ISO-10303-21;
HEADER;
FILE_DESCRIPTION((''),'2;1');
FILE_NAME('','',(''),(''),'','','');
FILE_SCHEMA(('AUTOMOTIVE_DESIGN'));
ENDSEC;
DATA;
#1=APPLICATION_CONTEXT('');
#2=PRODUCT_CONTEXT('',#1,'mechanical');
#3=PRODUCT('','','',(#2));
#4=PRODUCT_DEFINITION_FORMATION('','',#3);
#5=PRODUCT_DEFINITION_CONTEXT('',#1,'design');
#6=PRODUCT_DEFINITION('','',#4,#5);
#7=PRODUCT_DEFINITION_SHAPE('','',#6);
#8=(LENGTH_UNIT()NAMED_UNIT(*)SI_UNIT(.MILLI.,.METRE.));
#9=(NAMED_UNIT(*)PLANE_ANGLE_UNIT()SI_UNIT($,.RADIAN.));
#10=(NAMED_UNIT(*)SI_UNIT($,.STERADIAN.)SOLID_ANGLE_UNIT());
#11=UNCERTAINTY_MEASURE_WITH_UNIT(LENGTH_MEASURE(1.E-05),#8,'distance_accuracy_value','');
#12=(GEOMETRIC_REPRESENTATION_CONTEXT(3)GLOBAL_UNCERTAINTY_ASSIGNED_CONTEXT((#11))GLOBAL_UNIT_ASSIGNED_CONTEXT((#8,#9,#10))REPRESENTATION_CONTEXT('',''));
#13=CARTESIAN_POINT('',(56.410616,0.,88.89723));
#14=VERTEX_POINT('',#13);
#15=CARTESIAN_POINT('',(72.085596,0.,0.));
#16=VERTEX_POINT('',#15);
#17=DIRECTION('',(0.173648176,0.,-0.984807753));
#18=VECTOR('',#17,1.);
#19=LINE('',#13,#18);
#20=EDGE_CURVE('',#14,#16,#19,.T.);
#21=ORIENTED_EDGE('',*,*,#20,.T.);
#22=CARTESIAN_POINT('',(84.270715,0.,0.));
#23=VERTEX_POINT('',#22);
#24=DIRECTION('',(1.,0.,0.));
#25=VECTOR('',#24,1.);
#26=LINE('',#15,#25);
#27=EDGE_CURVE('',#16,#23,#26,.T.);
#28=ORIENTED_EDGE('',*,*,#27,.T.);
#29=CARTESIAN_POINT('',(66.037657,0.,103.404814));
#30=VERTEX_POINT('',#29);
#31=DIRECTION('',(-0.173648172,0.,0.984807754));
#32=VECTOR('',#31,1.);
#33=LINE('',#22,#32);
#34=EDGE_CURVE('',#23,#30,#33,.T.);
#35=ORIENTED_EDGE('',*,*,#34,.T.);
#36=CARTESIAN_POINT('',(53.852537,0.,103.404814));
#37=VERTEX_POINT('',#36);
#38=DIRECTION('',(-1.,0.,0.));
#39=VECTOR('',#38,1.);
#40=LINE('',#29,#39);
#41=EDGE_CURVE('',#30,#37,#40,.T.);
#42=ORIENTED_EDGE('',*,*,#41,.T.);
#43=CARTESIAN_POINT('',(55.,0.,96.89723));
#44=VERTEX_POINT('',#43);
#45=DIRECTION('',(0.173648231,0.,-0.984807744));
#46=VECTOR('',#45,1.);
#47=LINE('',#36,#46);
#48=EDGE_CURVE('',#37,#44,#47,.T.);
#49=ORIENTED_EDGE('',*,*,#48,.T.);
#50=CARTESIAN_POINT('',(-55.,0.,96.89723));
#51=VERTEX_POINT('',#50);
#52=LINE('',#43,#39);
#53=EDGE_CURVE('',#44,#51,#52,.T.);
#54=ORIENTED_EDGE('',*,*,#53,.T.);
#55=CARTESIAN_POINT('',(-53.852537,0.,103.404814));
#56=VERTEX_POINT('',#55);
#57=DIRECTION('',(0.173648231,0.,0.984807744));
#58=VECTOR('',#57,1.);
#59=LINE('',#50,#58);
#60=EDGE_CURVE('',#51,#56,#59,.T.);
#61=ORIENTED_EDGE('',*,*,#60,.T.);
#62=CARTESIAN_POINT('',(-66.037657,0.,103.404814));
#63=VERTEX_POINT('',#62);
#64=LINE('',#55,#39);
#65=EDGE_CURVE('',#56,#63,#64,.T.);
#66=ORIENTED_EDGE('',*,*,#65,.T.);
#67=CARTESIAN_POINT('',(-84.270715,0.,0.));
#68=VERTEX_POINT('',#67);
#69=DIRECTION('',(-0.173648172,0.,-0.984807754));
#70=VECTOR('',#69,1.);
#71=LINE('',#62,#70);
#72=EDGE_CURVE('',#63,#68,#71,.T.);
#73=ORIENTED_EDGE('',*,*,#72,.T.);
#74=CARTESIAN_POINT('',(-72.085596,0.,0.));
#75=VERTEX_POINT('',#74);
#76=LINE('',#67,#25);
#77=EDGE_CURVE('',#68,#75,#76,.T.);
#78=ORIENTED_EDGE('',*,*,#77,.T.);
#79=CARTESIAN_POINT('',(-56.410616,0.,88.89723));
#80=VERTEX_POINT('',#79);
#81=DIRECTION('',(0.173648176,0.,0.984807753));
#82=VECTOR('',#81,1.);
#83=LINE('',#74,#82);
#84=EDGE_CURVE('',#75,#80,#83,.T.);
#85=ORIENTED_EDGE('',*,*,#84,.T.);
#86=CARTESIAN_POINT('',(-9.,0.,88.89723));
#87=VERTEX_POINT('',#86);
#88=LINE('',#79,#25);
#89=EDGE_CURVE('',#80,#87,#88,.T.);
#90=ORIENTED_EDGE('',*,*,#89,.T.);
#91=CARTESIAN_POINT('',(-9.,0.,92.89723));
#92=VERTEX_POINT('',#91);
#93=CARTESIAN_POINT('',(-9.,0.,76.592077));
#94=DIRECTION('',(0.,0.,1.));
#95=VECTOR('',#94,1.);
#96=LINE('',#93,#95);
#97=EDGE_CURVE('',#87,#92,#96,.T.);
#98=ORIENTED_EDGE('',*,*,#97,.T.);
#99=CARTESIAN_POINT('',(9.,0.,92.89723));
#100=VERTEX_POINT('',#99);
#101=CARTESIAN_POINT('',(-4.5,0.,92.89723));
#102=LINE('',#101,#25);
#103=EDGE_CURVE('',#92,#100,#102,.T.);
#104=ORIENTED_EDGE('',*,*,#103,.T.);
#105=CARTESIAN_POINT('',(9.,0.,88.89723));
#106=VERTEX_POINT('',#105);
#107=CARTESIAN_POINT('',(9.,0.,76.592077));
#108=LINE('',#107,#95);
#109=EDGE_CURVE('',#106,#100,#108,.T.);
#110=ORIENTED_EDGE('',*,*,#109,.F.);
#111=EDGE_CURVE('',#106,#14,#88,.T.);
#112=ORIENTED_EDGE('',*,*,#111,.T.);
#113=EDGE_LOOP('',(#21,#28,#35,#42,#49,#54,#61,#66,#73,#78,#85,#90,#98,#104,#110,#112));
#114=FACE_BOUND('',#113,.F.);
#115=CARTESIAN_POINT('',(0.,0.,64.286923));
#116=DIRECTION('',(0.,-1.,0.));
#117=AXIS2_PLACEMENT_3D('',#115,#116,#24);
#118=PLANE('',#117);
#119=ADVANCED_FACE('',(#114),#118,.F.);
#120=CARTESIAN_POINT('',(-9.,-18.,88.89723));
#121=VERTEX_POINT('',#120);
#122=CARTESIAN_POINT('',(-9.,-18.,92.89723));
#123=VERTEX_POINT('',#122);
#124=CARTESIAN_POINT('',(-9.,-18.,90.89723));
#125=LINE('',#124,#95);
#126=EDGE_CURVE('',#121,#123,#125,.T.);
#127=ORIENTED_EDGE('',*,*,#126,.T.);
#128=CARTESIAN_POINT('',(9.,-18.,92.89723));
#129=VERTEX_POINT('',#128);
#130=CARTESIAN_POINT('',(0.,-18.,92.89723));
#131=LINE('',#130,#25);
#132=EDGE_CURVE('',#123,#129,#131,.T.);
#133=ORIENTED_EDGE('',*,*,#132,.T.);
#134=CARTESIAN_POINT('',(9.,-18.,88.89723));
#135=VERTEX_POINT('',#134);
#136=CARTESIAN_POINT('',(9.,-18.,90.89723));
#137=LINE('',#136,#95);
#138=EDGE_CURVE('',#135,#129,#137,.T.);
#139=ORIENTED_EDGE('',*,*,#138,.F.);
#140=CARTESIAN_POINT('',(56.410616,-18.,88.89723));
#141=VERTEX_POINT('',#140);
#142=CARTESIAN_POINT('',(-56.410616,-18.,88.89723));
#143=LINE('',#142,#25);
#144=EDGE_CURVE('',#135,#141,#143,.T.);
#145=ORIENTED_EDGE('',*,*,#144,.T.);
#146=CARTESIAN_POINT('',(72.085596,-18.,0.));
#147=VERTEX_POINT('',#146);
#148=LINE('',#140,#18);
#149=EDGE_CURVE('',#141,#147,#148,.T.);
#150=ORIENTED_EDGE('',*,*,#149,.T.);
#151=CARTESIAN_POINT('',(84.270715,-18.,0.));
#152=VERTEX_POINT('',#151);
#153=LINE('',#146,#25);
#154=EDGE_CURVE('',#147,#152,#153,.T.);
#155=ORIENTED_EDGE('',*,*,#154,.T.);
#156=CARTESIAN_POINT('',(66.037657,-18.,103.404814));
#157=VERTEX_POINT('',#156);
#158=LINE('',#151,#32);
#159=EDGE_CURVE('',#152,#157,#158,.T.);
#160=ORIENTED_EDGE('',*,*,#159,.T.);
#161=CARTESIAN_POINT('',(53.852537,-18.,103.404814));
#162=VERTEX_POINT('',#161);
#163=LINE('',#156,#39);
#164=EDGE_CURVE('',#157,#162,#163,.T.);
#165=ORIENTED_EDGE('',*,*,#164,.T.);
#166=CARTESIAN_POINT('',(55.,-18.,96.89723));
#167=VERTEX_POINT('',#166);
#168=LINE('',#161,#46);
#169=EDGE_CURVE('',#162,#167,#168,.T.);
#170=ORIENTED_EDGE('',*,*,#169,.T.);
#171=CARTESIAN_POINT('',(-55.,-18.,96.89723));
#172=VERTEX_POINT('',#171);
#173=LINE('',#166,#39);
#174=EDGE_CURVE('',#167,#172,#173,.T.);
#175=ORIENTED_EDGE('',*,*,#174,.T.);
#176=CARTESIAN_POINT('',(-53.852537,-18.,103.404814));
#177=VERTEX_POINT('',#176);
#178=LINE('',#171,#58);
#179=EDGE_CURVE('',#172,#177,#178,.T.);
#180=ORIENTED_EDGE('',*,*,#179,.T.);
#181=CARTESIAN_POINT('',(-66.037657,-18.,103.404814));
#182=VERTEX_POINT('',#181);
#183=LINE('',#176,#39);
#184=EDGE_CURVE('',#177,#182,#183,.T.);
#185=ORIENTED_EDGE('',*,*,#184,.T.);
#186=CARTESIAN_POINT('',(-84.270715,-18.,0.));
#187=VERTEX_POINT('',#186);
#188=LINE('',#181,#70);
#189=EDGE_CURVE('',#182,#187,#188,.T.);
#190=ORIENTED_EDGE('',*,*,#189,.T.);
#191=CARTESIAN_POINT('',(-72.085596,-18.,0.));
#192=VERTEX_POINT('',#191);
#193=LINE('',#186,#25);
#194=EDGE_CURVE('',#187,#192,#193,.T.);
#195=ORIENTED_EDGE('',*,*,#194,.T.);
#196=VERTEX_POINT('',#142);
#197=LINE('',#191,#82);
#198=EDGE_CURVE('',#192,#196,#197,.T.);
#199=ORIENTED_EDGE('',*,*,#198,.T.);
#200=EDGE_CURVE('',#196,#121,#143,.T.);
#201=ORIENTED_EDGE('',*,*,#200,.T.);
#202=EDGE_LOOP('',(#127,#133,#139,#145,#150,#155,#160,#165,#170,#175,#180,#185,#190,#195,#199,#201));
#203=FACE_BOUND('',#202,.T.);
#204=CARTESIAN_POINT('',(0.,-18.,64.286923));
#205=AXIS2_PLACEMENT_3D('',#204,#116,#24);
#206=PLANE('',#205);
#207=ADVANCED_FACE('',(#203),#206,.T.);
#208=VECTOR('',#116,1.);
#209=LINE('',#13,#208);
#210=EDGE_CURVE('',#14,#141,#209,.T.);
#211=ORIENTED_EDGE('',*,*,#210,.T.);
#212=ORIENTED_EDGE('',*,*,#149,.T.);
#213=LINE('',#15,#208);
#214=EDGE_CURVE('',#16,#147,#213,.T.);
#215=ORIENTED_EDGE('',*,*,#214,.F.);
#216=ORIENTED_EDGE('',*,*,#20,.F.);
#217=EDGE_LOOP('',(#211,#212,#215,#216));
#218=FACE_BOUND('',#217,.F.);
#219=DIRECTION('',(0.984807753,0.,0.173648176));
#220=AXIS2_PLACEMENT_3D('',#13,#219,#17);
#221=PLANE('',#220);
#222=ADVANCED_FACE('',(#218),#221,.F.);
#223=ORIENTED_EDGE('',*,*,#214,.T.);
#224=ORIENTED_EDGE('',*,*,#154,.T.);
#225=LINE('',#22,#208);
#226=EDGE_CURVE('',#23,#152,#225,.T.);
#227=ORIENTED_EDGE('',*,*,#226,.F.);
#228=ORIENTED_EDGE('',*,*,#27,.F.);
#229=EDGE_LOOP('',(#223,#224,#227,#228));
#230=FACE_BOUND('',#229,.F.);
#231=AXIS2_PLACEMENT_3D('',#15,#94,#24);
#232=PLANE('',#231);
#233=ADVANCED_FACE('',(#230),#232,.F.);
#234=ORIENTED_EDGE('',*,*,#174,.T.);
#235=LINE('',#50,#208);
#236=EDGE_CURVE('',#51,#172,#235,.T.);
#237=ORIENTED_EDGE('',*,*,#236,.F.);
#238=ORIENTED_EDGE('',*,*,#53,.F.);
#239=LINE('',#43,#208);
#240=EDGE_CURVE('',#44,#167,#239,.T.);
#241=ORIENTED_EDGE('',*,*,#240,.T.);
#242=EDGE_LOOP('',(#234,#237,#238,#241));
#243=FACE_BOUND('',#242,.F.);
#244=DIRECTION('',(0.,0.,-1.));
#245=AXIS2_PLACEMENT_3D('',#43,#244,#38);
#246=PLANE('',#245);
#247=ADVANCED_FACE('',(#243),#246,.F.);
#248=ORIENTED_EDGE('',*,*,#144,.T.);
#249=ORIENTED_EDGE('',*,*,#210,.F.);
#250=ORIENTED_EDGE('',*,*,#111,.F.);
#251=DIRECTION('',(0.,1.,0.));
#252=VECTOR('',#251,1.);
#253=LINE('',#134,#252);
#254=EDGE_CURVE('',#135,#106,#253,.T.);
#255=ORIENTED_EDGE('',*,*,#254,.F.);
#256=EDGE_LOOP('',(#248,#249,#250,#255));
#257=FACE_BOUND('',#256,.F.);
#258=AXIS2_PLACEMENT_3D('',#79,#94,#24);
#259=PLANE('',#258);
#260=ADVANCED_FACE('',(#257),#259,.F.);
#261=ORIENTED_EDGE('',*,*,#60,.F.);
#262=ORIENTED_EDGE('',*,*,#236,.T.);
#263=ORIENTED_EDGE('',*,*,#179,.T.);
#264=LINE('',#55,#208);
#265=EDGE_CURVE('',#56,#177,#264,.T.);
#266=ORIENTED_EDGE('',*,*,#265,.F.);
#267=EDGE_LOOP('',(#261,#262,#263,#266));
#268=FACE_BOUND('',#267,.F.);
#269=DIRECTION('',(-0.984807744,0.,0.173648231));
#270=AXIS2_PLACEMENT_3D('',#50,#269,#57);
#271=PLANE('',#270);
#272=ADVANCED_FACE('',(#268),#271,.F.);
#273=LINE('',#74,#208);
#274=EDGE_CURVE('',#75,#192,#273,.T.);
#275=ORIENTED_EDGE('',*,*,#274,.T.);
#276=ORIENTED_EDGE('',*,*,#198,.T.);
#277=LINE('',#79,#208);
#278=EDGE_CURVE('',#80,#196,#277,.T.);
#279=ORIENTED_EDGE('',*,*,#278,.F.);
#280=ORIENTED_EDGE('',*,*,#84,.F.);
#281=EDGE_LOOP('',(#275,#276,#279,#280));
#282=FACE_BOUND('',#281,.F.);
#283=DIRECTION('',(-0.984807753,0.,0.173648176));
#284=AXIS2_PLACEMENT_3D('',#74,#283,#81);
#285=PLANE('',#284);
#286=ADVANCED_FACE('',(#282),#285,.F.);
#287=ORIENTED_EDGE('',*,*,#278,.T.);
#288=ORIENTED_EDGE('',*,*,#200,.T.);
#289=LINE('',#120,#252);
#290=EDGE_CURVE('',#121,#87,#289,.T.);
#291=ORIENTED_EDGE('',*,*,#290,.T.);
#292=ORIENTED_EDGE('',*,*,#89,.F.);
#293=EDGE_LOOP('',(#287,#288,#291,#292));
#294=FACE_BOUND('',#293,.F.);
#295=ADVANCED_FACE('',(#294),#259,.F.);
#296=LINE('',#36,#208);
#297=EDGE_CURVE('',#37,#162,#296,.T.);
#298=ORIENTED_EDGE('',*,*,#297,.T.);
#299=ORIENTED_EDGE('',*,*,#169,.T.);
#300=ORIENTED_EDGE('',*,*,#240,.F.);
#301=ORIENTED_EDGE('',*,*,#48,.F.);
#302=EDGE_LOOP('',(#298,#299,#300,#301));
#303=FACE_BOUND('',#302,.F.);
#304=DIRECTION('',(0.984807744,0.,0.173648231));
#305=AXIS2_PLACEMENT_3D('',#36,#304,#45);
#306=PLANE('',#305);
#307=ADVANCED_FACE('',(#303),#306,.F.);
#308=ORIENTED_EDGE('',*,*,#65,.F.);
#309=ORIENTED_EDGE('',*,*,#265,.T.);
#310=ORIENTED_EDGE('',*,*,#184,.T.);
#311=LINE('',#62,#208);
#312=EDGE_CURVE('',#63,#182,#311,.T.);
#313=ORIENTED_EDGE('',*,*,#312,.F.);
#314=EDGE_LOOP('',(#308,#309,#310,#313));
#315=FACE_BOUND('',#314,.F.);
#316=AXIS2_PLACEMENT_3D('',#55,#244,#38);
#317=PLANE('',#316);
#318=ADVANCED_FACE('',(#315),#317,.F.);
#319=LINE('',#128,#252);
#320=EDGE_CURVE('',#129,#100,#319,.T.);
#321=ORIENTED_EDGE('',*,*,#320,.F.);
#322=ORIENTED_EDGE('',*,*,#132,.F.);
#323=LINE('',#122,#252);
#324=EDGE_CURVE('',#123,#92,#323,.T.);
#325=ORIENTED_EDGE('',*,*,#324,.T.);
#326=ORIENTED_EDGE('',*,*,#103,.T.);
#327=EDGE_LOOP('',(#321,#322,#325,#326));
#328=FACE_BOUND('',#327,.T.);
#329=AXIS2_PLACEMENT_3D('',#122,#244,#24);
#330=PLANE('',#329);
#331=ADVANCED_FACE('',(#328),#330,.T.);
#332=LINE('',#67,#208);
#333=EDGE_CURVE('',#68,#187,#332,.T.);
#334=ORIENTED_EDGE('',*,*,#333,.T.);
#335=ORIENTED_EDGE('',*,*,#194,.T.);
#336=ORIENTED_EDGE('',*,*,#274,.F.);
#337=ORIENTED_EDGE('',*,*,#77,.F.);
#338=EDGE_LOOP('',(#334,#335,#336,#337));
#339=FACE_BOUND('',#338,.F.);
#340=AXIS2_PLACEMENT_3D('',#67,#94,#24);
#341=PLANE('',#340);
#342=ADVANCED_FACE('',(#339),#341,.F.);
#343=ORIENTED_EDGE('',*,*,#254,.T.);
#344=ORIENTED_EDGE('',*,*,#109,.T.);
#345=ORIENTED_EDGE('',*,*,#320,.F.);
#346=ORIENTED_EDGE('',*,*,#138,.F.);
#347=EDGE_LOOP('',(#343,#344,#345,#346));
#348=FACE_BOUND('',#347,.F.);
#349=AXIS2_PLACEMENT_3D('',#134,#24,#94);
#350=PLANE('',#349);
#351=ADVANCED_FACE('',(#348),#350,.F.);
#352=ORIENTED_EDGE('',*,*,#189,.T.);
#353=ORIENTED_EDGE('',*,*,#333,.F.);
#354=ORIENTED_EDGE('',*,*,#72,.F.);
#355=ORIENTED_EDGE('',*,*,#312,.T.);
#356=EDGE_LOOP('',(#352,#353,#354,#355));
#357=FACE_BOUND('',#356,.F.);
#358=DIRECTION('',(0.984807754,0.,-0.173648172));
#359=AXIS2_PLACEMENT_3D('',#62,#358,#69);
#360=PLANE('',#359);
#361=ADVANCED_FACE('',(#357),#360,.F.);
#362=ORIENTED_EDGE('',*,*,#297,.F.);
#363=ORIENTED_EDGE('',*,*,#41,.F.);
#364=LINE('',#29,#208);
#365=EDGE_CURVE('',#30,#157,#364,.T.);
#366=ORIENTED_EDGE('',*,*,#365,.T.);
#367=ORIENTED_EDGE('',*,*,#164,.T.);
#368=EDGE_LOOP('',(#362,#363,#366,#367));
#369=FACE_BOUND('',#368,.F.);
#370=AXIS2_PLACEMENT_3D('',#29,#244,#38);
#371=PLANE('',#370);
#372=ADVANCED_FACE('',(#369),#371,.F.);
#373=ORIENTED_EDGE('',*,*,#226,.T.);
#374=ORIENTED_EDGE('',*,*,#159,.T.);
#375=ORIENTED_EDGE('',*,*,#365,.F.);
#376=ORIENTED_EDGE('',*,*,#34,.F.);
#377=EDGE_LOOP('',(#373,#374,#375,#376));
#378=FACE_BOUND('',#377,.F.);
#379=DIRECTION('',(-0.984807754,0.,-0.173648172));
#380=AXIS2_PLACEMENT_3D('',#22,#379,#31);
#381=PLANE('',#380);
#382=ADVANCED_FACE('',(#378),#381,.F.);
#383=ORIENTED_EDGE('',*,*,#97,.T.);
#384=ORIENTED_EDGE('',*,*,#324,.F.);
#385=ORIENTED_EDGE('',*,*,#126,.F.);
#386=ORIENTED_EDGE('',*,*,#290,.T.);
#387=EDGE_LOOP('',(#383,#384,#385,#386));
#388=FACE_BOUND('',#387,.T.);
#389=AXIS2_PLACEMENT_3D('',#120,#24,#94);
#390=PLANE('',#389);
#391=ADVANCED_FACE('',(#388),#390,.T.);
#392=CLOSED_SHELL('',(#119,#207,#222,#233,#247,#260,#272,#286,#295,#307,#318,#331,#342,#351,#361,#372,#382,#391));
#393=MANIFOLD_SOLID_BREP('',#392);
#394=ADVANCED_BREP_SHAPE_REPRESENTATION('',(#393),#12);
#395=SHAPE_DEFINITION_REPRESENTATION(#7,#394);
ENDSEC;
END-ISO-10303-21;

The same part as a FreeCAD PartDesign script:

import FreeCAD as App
import Part
import Sketcher

doc = App.newDocument("Part")
body = doc.addObject("PartDesign::Body", "Body")

# Sketch on XZ plane
sketch1 = body.newObject("Sketcher::SketchObject", "Sketch")
sketch1.AttachmentSupport = (doc.getObject("XZ_Plane"), [""])
sketch1.MapMode = "FlatFace"
sketch1.addGeometry([
    Part.LineSegment(App.Vector(55, 96.89723, 0), App.Vector(-55, 96.89723, 0)),  # 0
    Part.LineSegment(App.Vector(-55, 96.89723, 0), App.Vector(-53.852537, 103.404814, 0)),  # 1
    Part.LineSegment(App.Vector(-53.852537, 103.404814, 0), App.Vector(-66.037657, 103.404814, 0)),  # 2
    Part.LineSegment(App.Vector(-66.037657, 103.404814, 0), App.Vector(-84.270715, 0, 0)),  # 3
    Part.LineSegment(App.Vector(-84.270715, 0, 0), App.Vector(-72.085596, 0, 0)),  # 4
    Part.LineSegment(App.Vector(-72.085596, 0, 0), App.Vector(-56.410616, 88.89723, 0)),  # 5
    Part.LineSegment(App.Vector(-56.410616, 88.89723, 0), App.Vector(56.410616, 88.89723, 0)),  # 6
    Part.LineSegment(App.Vector(56.410616, 88.89723, 0), App.Vector(72.085596, 0, 0)),  # 7
    Part.LineSegment(App.Vector(72.085596, 0, 0), App.Vector(84.270715, 0, 0)),  # 8
    Part.LineSegment(App.Vector(84.270715, 0, 0), App.Vector(66.037657, 103.404814, 0)),  # 9
    Part.LineSegment(App.Vector(66.037657, 103.404814, 0), App.Vector(53.852537, 103.404814, 0)),  # 10
    Part.LineSegment(App.Vector(53.852537, 103.404814, 0), App.Vector(55, 96.89723, 0)),  # 11
], False)
sketch1.addConstraint([
    Sketcher.Constraint("Coincident", 0, 2, 1, 1),
    Sketcher.Constraint("Coincident", 1, 2, 2, 1),
    Sketcher.Constraint("Coincident", 2, 2, 3, 1),
    Sketcher.Constraint("Coincident", 3, 2, 4, 1),
    Sketcher.Constraint("Coincident", 4, 2, 5, 1),
    Sketcher.Constraint("Coincident", 5, 2, 6, 1),
    Sketcher.Constraint("Coincident", 6, 2, 7, 1),
    Sketcher.Constraint("Coincident", 7, 2, 8, 1),
    Sketcher.Constraint("Coincident", 8, 2, 9, 1),
    Sketcher.Constraint("Coincident", 9, 2, 10, 1),
    Sketcher.Constraint("Coincident", 10, 2, 11, 1),
    Sketcher.Constraint("Coincident", 11, 2, 0, 1),
    Sketcher.Constraint("Horizontal", 0),
    Sketcher.Constraint("Horizontal", 2),
    Sketcher.Constraint("Horizontal", 4),
    Sketcher.Constraint("Horizontal", 6),
    Sketcher.Constraint("Horizontal", 8),
    Sketcher.Constraint("Horizontal", 10),
    Sketcher.Constraint("PointOnObject", 3, 2, -1),
    Sketcher.Constraint("PointOnObject", 7, 2, -1),
    Sketcher.Constraint("DistanceX", 0, 2, 0, 1, 110.0),
    Sketcher.Constraint("Distance", 3, 105.0),
    Sketcher.Constraint("Distance", 9, 105.0),
    Sketcher.Constraint("DistanceX", 0, 2, -1, 1, 55.0),
    Sketcher.Constraint("DistanceY", 5, 2, 0, 2, 8.0),
    Sketcher.Constraint("DistanceX", 2, 2, 2, 1, 12.18512),
    Sketcher.Constraint("DistanceX", 4, 1, 4, 2, 12.185119),
    Sketcher.Constraint("DistanceX", 6, 1, 6, 2, 112.821232),
    Sketcher.Constraint("DistanceX", 8, 1, 8, 2, 12.185119),
    Sketcher.Constraint("DistanceX", 10, 2, 10, 1, 12.18512),
    Sketcher.Constraint("DistanceX", 3, 2, 5, 2, 27.860099),
    Sketcher.Constraint("DistanceX", 6, 2, 8, 2, 27.860099),
    Sketcher.Constraint("DistanceY", -1, 1, 0, 2, 96.89723),
    Sketcher.Constraint("DistanceX", 3, 2, 2, 2, 18.233058),
    Sketcher.Constraint("DistanceX", 6, 2, 9, 2, 9.627041),
    Sketcher.Constraint("Distance", 1, 6.607974),
])
pad1 = body.newObject("PartDesign::Pad", "Pad")
pad1.Profile = sketch1
pad1.Length = 18

# Sketch on XZ plane
sketch2 = body.newObject("Sketcher::SketchObject", "Sketch001")
sketch2.AttachmentSupport = (doc.getObject("XZ_Plane"), [""])
sketch2.MapMode = "FlatFace"
sketch2.AttachmentOffset = App.Placement(App.Vector(0, 0, 18), App.Rotation())
sketch2.addGeometry([
    Part.LineSegment(App.Vector(-9, 92.9, 0), App.Vector(-9, 88.9, 0)),
    Part.LineSegment(App.Vector(-9, 88.9, 0), App.Vector(9, 88.9, 0)),
    Part.LineSegment(App.Vector(9, 88.9, 0), App.Vector(9, 92.9, 0)),
    Part.LineSegment(App.Vector(9, 92.9, 0), App.Vector(-9, 92.9, 0)),
], False)
sketch2.addConstraint([
    Sketcher.Constraint("Coincident", 0, 2, 1, 1),
    Sketcher.Constraint("Coincident", 1, 2, 2, 1),
    Sketcher.Constraint("Coincident", 2, 2, 3, 1),
    Sketcher.Constraint("Coincident", 3, 2, 0, 1),
    Sketcher.Constraint("Vertical", 0),
    Sketcher.Constraint("Horizontal", 1),
    Sketcher.Constraint("Vertical", 2),
    Sketcher.Constraint("Horizontal", 3),
    Sketcher.Constraint("DistanceX", 1, 1, 1, 2, 18.0),
    Sketcher.Constraint("DistanceY", 0, 2, 0, 1, 4.0),
    Sketcher.Constraint("DistanceX", 0, 2, -1, 1, 9.0),
    Sketcher.Constraint("DistanceY", -1, 1, 0, 2, 88.89723),
])
pocket1 = body.newObject("PartDesign::Pocket", "Pocket")
pocket1.Profile = sketch2
pocket1.Length = 20

doc.recompute()
